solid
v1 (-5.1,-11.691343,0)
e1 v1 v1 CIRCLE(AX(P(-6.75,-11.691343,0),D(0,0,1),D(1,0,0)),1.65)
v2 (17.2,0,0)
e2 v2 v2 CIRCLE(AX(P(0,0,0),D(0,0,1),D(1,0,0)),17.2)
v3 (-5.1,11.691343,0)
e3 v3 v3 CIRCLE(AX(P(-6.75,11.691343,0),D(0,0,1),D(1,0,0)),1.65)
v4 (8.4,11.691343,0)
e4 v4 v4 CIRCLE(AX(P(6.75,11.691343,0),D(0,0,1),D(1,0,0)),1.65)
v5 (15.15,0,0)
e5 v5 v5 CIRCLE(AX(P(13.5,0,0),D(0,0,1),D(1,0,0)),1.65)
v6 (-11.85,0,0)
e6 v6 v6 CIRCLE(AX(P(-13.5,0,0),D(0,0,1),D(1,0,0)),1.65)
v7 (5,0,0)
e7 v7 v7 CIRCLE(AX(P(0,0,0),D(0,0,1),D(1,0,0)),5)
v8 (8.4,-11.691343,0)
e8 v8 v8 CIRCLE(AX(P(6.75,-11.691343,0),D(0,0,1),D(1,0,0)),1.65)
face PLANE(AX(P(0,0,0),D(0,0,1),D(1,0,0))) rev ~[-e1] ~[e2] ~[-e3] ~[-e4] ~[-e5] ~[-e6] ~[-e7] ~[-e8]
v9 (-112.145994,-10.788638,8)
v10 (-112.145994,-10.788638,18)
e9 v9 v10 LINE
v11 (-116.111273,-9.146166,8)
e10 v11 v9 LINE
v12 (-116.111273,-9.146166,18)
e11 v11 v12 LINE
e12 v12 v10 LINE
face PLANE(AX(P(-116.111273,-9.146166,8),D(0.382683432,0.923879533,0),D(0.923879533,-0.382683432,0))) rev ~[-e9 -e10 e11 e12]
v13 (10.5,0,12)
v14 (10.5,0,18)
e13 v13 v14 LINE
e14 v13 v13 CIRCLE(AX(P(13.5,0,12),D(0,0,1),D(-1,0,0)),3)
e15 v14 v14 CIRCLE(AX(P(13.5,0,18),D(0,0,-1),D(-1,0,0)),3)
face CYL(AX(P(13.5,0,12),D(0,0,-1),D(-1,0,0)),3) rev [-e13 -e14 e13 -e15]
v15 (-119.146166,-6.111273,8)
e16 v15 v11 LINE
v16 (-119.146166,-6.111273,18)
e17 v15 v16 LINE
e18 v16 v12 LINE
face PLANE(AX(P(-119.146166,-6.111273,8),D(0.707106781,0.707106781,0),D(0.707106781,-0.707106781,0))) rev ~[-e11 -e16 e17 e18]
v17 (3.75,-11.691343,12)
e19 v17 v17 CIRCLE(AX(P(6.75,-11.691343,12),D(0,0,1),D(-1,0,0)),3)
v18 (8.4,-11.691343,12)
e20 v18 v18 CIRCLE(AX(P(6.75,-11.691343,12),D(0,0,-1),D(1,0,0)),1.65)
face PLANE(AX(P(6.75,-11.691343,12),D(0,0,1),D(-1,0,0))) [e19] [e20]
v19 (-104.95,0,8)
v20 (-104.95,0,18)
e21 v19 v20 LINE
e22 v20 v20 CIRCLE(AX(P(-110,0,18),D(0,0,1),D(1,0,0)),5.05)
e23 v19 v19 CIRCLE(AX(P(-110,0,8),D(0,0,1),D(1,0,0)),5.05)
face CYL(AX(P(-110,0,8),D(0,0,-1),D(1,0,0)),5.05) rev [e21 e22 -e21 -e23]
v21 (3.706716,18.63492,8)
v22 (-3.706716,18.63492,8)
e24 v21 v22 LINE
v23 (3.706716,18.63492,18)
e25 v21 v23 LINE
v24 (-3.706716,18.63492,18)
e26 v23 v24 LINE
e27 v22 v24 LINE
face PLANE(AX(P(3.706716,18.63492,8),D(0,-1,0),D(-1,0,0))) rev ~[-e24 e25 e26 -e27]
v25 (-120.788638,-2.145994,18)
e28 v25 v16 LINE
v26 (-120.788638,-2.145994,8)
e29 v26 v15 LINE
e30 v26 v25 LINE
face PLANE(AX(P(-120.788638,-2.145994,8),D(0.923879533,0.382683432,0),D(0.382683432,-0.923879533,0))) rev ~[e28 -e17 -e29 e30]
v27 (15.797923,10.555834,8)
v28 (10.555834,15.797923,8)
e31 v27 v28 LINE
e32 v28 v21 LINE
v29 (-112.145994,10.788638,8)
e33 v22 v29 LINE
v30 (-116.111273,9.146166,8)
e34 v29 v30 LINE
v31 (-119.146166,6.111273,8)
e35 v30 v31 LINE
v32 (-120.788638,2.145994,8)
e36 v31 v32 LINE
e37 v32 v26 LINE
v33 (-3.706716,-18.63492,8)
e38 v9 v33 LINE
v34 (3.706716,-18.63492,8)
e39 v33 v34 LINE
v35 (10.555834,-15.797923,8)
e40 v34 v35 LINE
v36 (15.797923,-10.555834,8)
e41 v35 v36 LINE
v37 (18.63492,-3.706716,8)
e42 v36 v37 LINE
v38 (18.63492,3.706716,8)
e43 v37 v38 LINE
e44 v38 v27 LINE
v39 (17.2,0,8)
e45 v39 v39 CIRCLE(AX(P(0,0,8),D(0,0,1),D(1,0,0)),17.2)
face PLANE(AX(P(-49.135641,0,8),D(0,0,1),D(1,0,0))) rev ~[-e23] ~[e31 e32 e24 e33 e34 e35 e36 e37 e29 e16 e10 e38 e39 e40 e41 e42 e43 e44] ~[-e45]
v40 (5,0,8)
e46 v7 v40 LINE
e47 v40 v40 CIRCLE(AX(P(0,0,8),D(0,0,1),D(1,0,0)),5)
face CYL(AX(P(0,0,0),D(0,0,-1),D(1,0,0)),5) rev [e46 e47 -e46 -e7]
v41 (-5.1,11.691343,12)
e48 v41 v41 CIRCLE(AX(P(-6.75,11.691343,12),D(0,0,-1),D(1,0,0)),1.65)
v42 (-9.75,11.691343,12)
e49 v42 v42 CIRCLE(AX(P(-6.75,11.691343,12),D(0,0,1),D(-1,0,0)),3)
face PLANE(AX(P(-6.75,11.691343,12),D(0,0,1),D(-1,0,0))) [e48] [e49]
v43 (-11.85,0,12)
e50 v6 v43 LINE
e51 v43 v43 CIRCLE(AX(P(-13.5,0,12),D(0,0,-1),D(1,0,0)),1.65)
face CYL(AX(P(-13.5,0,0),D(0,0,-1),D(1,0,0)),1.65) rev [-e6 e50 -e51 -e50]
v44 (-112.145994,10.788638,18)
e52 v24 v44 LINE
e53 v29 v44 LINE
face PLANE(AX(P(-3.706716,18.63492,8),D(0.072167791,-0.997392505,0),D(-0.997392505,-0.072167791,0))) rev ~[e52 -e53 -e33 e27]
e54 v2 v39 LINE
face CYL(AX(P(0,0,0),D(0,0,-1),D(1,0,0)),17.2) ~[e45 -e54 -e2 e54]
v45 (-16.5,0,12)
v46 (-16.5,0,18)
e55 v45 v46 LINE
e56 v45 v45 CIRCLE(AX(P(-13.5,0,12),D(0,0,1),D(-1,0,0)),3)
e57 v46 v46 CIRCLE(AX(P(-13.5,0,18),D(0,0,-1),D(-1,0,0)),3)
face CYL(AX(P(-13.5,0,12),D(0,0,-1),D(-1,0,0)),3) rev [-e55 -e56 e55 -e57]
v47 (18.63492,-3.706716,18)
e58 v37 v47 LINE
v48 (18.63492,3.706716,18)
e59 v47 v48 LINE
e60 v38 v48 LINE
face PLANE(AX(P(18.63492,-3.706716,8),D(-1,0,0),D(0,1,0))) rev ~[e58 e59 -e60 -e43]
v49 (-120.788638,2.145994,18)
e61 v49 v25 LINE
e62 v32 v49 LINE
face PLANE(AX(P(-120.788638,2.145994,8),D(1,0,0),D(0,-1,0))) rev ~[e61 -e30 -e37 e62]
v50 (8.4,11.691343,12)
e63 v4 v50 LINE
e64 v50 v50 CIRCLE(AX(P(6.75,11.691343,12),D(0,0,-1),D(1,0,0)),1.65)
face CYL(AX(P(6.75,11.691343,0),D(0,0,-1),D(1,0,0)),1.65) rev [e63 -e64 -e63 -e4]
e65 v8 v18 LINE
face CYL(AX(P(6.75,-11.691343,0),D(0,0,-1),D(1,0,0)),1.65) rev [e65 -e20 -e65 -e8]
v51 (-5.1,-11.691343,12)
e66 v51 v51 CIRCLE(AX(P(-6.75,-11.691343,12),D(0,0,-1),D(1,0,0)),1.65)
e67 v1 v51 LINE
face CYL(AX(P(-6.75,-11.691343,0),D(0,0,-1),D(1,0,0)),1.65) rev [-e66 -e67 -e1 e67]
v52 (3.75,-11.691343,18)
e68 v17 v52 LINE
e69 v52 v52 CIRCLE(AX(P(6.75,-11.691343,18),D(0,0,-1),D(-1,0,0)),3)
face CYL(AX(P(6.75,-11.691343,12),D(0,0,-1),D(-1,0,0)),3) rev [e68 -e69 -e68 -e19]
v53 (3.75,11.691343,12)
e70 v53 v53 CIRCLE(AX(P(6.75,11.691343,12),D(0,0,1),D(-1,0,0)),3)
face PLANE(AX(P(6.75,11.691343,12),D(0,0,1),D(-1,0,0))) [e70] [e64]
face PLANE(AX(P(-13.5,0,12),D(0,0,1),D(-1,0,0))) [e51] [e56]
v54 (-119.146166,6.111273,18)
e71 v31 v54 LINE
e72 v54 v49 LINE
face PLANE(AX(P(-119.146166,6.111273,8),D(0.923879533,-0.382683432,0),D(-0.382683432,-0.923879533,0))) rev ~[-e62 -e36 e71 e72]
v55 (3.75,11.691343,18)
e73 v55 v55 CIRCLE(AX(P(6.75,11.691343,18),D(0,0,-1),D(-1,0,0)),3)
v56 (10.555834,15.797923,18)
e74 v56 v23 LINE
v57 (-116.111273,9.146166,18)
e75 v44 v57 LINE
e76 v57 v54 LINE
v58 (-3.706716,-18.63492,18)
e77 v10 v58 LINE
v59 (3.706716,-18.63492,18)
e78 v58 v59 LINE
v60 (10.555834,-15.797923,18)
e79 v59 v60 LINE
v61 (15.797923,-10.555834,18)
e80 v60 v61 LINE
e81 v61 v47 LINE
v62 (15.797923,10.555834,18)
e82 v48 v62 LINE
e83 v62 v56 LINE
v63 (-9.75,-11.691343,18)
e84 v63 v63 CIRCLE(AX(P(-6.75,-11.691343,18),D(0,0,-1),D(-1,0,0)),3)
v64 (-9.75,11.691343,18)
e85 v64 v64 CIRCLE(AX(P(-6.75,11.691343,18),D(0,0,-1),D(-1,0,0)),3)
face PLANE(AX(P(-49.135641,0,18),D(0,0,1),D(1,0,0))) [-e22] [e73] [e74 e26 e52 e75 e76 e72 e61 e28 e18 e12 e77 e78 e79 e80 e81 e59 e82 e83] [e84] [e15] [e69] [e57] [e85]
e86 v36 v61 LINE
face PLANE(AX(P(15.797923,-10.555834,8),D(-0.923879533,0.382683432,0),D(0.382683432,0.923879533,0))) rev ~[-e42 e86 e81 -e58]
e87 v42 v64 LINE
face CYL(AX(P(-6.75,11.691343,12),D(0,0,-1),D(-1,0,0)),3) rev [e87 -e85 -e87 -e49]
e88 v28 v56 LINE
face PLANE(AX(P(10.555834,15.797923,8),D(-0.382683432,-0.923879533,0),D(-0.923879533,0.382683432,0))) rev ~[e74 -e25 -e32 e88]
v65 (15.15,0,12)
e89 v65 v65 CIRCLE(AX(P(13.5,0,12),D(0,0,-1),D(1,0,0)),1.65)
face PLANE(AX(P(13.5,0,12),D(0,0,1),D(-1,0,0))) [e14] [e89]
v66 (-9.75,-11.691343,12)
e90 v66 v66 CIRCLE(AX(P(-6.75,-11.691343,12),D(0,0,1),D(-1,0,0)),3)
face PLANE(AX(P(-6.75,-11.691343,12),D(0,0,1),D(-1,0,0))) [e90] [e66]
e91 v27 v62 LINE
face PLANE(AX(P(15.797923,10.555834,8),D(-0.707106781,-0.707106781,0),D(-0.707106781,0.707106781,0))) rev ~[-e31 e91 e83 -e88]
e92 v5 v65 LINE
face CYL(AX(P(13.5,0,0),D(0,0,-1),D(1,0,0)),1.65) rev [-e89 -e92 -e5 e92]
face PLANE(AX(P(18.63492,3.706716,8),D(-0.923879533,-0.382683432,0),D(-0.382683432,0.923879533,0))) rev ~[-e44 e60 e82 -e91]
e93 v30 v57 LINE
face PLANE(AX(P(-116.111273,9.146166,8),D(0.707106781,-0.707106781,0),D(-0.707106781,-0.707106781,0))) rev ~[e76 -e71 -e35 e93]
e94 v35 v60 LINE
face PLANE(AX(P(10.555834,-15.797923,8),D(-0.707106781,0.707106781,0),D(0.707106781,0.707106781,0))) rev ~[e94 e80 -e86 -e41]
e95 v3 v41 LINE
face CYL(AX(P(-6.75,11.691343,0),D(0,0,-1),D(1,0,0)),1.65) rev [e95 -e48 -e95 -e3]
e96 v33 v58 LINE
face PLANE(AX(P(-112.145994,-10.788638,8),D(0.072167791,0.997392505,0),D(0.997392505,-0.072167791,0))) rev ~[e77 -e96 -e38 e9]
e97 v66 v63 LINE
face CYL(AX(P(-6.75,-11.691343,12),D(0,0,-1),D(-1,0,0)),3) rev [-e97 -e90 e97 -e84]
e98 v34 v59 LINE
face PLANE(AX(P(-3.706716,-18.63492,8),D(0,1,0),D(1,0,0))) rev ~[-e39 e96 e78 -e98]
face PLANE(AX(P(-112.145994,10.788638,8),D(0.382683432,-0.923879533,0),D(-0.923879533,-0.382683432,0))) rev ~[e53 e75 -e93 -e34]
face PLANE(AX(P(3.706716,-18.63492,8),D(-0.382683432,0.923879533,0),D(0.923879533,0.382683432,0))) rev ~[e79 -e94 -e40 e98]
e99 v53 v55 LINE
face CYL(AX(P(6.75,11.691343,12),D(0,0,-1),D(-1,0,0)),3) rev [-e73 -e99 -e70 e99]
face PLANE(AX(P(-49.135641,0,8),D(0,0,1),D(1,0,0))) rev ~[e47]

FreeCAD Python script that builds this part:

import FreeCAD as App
import Part
import Sketcher
Q = App.Units.Quantity

doc = App.newDocument("Part")
params = doc.addObject("Spreadsheet::Sheet", "Params")
for row, (alias, value) in enumerate([
    ("sketch1_diameter", "3.3 mm"),
    ("sketch1_diameter2", "10.1 mm"),
    ("pad1_length", "10 mm"),
    ("sketch2_diameter", "10 mm"),
    ("sketch2_diameter2", "34.4 mm"),
    ("sketch2_diameter3", "3.3 mm"),
    ("pad2_length", "8 mm"),
    ("sketch3_diameter", "6 mm"),
    ("pocket1_length", "6.01 mm"),
], start=1):
    params.set(f"A{row}", alias)
    params.set(f"B{row}", "=" + value)
    params.setAlias(f"B{row}", alias)

body = doc.addObject("PartDesign::Body", "Body")

sketch1 = body.newObject("Sketcher::SketchObject", "Sketch")
sketch1.AttachmentSupport = (doc.getObject("XY_Plane"), [""])
sketch1.MapMode = "FlatFace"
sketch1.AttachmentOffset = App.Placement(App.Vector(0, 0, 8), App.Rotation())
sketch1.addGeometry(Part.LineSegment(App.Vector(-116.1, 9.1, 0), App.Vector(-119.1, 6.1, 0)), False)
sketch1.addGeometry(Part.LineSegment(App.Vector(-119.1, 6.1, 0), App.Vector(-120.8, 2.1, 0)), False)
sketch1.addGeometry(Part.LineSegment(App.Vector(-120.8, 2.1, 0), App.Vector(-120.8, -2.1, 0)), False)
sketch1.addGeometry(Part.LineSegment(App.Vector(-120.8, -2.1, 0), App.Vector(-119.1, -6.1, 0)), False)
sketch1.addGeometry(Part.LineSegment(App.Vector(-119.1, -6.1, 0), App.Vector(-116.1, -9.1, 0)), False)
sketch1.addGeometry(Part.LineSegment(App.Vector(-116.1, -9.1, 0), App.Vector(-112.1, -10.8, 0)), False)
sketch1.addGeometry(Part.LineSegment(App.Vector(-112.1, -10.8, 0), App.Vector(-3.7, -18.6, 0)), False)
sketch1.addGeometry(Part.LineSegment(App.Vector(-3.7, -18.6, 0), App.Vector(3.7, -18.6, 0)), False)
sketch1.addGeometry(Part.LineSegment(App.Vector(3.7, -18.6, 0), App.Vector(10.6, -15.8, 0)), False)
sketch1.addGeometry(Part.LineSegment(App.Vector(10.6, -15.8, 0), App.Vector(15.8, -10.6, 0)), False)
sketch1.addGeometry(Part.LineSegment(App.Vector(15.8, -10.6, 0), App.Vector(18.6, -3.7, 0)), False)
sketch1.addGeometry(Part.LineSegment(App.Vector(18.6, -3.7, 0), App.Vector(18.6, 3.7, 0)), False)
sketch1.addGeometry(Part.LineSegment(App.Vector(18.6, 3.7, 0), App.Vector(15.8, 10.6, 0)), False)
sketch1.addGeometry(Part.LineSegment(App.Vector(15.8, 10.6, 0), App.Vector(10.6, 15.8, 0)), False)
sketch1.addGeometry(Part.LineSegment(App.Vector(10.6, 15.8, 0), App.Vector(3.7, 18.6, 0)), False)
sketch1.addGeometry(Part.LineSegment(App.Vector(3.7, 18.6, 0), App.Vector(-3.7, 18.6, 0)), False)
sketch1.addGeometry(Part.LineSegment(App.Vector(-3.7, 18.6, 0), App.Vector(-112.1, 10.8, 0)), False)
sketch1.addGeometry(Part.LineSegment(App.Vector(-112.1, 10.8, 0), App.Vector(-116.1, 9.1, 0)), False)
sketch1.addGeometry(Part.Circle(App.Vector(-6.8, -11.7, 0), App.Vector(0, 0, 1), 1.6), False)
sketch1.addGeometry(Part.Circle(App.Vector(6.8, -11.7, 0), App.Vector(0, 0, 1), 1.6), False)
sketch1.addGeometry(Part.Circle(App.Vector(-110, 0, 0), App.Vector(0, 0, 1), 5), False)
sketch1.addGeometry(Part.Circle(App.Vector(-13.5, 0, 0), App.Vector(0, 0, 1), 1.6), False)
sketch1.addGeometry(Part.Circle(App.Vector(13.5, 0, 0), App.Vector(0, 0, 1), 1.6), False)
sketch1.addGeometry(Part.Circle(App.Vector(-6.8, 11.7, 0), App.Vector(0, 0, 1), 1.6), False)
sketch1.addGeometry(Part.Circle(App.Vector(6.8, 11.7, 0), App.Vector(0, 0, 1), 1.6), False)
sketch1.addConstraint(Sketcher.Constraint("Coincident", 0, 2, 1, 1))
sketch1.addConstraint(Sketcher.Constraint("Coincident", 1, 2, 2, 1))
sketch1.addConstraint(Sketcher.Constraint("Coincident", 2, 2, 3, 1))
sketch1.addConstraint(Sketcher.Constraint("Coincident", 3, 2, 4, 1))
sketch1.addConstraint(Sketcher.Constraint("Coincident", 4, 2, 5, 1))
sketch1.addConstraint(Sketcher.Constraint("Coincident", 5, 2, 6, 1))
sketch1.addConstraint(Sketcher.Constraint("Coincident", 6, 2, 7, 1))
sketch1.addConstraint(Sketcher.Constraint("Coincident", 7, 2, 8, 1))
sketch1.addConstraint(Sketcher.Constraint("Coincident", 8, 2, 9, 1))
sketch1.addConstraint(Sketcher.Constraint("Coincident", 9, 2, 10, 1))
sketch1.addConstraint(Sketcher.Constraint("Coincident", 10, 2, 11, 1))
sketch1.addConstraint(Sketcher.Constraint("Coincident", 11, 2, 12, 1))
sketch1.addConstraint(Sketcher.Constraint("Coincident", 12, 2, 13, 1))
sketch1.addConstraint(Sketcher.Constraint("Coincident", 13, 2, 14, 1))
sketch1.addConstraint(Sketcher.Constraint("Coincident", 14, 2, 15, 1))
sketch1.addConstraint(Sketcher.Constraint("Coincident", 15, 2, 16, 1))
sketch1.addConstraint(Sketcher.Constraint("Coincident", 16, 2, 17, 1))
sketch1.addConstraint(Sketcher.Constraint("Coincident", 17, 2, 0, 1))
sketch1.addConstraint(Sketcher.Constraint("Vertical", 2))
sketch1.addConstraint(Sketcher.Constraint("Horizontal", 7))
sketch1.addConstraint(Sketcher.Constraint("Vertical", 11))
sketch1.addConstraint(Sketcher.Constraint("Horizontal", 15))
sketch1.addConstraint(Sketcher.Constraint("Equal", 18, 19))
sketch1.addConstraint(Sketcher.Constraint("Equal", 19, 21))
sketch1.addConstraint(Sketcher.Constraint("Equal", 21, 22))
sketch1.addConstraint(Sketcher.Constraint("Equal", 22, 23))
sketch1.addConstraint(Sketcher.Constraint("Equal", 23, 24))
sketch1.addConstraint(Sketcher.Constraint("Symmetric", 21, 3, 22, 3, -1, 1))
sketch1.addConstraint(Sketcher.Constraint("Symmetric", 19, 3, 23, 3, -1, 1))
sketch1.addConstraint(Sketcher.Constraint("Symmetric", 18, 3, 24, 3, -1, 1))
sketch1.addConstraint(Sketcher.Constraint("Symmetric", 6, 2, 14, 2, -1, 1))
sketch1.addConstraint(Sketcher.Constraint("Symmetric", 18, 3, 19, 3, -2))
sketch1.addConstraint(Sketcher.Constraint("Symmetric", 0, 2, 3, 2, -1))
sketch1.addConstraint(Sketcher.Constraint("Symmetric", 9, 2, 12, 2, -1))
sketch1.addConstraint(Sketcher.Constraint("Symmetric", 8, 2, 13, 2, -1))
sketch1.addConstraint(Sketcher.Constraint("Symmetric", 5, 2, 16, 2, -1))
sketch1.addConstraint(Sketcher.Constraint("Symmetric", 4, 2, 17, 2, -1))
sketch1.addConstraint(Sketcher.Constraint("PointOnObject", 20, 3, -1))
sketch1.addConstraint(Sketcher.Constraint("PointOnObject", 21, 3, -1))
sketch1.addConstraint(Sketcher.Constraint("Perpendicular", 0, 4))
sketch1.addConstraint(Sketcher.Constraint("Perpendicular", 1, 5))
sketch1.addConstraint(Sketcher.Constraint("Perpendicular", 3, 8))
sketch1.addConstraint(Sketcher.Constraint("Perpendicular", 4, 9))
sketch1.addConstraint(Sketcher.Constraint("Perpendicular", 5, 10))
sketch1.addConstraint(Sketcher.Constraint("Perpendicular", 8, 12))
sketch1.addConstraint(Sketcher.Constraint("Perpendicular", 10, 14))
sketch1.addConstraint(Sketcher.Constraint("Perpendicular", 12, 17))
sketch1.addConstraint(Sketcher.Constraint("Vertical", 6, 2, 15, 2))
sketch1.addConstraint(Sketcher.Constraint("Equal", 15, 11))
sketch1.addConstraint(Sketcher.Constraint("Equal", 0, 1))
sketch1.addConstraint(Sketcher.Constraint("Equal", 4, 5))
sketch1.addConstraint(Sketcher.Constraint("Equal", 8, 9))
sketch1.addConstraint(Sketcher.Constraint("Equal", 9, 10))
sketch1.addConstraint(Sketcher.Constraint("Diameter", 18, Q("3.3 mm")))
sketch1.addConstraint(Sketcher.Constraint("Diameter", 20, Q("10.1 mm")))
sketch1.addConstraint(Sketcher.Constraint("DistanceX", 20, 3, -1, 1, Q("110 mm")))
sketch1.addConstraint(Sketcher.Constraint("Angle", 1, Q("-112.5 deg")))
sketch1.addConstraint(Sketcher.Constraint("DistanceX", 21, 3, 22, 3, Q("27 mm")))
sketch1.addConstraint(Sketcher.Constraint("DistanceX", 18, 3, 19, 3, Q("13.5 mm")))
sketch1.addConstraint(Sketcher.Constraint("Distance", 6, Q("108.722771 mm")))
sketch1.addConstraint(Sketcher.Constraint("DistanceX", 7, 1, 7, 2, Q("7.413432 mm")))
sketch1.addConstraint(Sketcher.Constraint("DistanceY", 2, 2, 2, 1, Q("4.291987 mm")))
sketch1.addConstraint(Sketcher.Constraint("DistanceX", 1, 2, -1, 1, Q("120.788638 mm")))
sketch1.addConstraint(Sketcher.Constraint("DistanceY", 5, 2, -1, 1, Q("10.788638 mm")))
sketch1.addConstraint(Sketcher.Constraint("DistanceY", 0, 2, 23, 3, Q("5.58007 mm")))
sketch1.setExpression("Constraints[53]", "Params.sketch1_diameter")
sketch1.setExpression("Constraints[54]", "Params.sketch1_diameter2")
pad1 = body.newObject("PartDesign::Pad", "Pad")
pad1.Profile = sketch1
pad1.setExpression("Length", "Params.pad1_length")

sketch2 = body.newObject("Sketcher::SketchObject", "Sketch001")
sketch2.AttachmentSupport = (doc.getObject("XY_Plane"), [""])
sketch2.MapMode = "FlatFace"
sketch2.addGeometry(Part.Circle(App.Vector(0, 0, 0), App.Vector(0, 0, 1), 17.2), False)
sketch2.addGeometry(Part.Circle(App.Vector(-6.8, -11.7, 0), App.Vector(0, 0, 1), 1.6), False)
sketch2.addGeometry(Part.Circle(App.Vector(6.8, -11.7, 0), App.Vector(0, 0, 1), 1.6), False)
sketch2.addGeometry(Part.Circle(App.Vector(0, 0, 0), App.Vector(0, 0, 1), 5), False)
sketch2.addGeometry(Part.Circle(App.Vector(-13.5, 0, 0), App.Vector(0, 0, 1), 1.6), False)
sketch2.addGeometry(Part.Circle(App.Vector(-6.8, 11.7, 0), App.Vector(0, 0, 1), 1.6), False)
sketch2.addGeometry(Part.Circle(App.Vector(13.5, 0, 0), App.Vector(0, 0, 1), 1.6), False)
sketch2.addGeometry(Part.Circle(App.Vector(6.8, 11.7, 0), App.Vector(0, 0, 1), 1.6), False)
sketch2.addConstraint(Sketcher.Constraint("Coincident", 0, 3, -1, 1))
sketch2.addConstraint(Sketcher.Constraint("Coincident", 3, 3, -1, 1))
sketch2.addConstraint(Sketcher.Constraint("Equal", 1, 2))
sketch2.addConstraint(Sketcher.Constraint("Equal", 2, 4))
sketch2.addConstraint(Sketcher.Constraint("Equal", 4, 5))
sketch2.addConstraint(Sketcher.Constraint("Equal", 5, 6))
sketch2.addConstraint(Sketcher.Constraint("Equal", 6, 7))
sketch2.addConstraint(Sketcher.Constraint("Symmetric", 2, 3, 5, 3, -1, 1))
sketch2.addConstraint(Sketcher.Constraint("Symmetric", 4, 3, 6, 3, -1, 1))
sketch2.addConstraint(Sketcher.Constraint("Symmetric", 1, 3, 7, 3, -1, 1))
sketch2.addConstraint(Sketcher.Constraint("Symmetric", 1, 3, 2, 3, -2))
sketch2.addConstraint(Sketcher.Constraint("PointOnObject", 4, 3, -1))
sketch2.addConstraint(Sketcher.Constraint("Diameter", 3, Q("10 mm")))
sketch2.addConstraint(Sketcher.Constraint("Diameter", 0, Q("34.4 mm")))
sketch2.addConstraint(Sketcher.Constraint("Diameter", 1, Q("3.3 mm")))
sketch2.addConstraint(Sketcher.Constraint("DistanceX", 4, 3, -1, 1, Q("13.5 mm")))
sketch2.addConstraint(Sketcher.Constraint("DistanceX", 1, 3, 2, 3, Q("13.5 mm")))
sketch2.addConstraint(Sketcher.Constraint("DistanceY", 1, 3, -1, 1, Q("11.691343 mm")))
sketch2.setExpression("Constraints[12]", "Params.sketch2_diameter")
sketch2.setExpression("Constraints[13]", "Params.sketch2_diameter2")
sketch2.setExpression("Constraints[14]", "Params.sketch2_diameter3")
pad2 = body.newObject("PartDesign::Pad", "Pad001")
pad2.Profile = sketch2
pad2.setExpression("Length", "Params.pad2_length")

sketch3 = body.newObject("Sketcher::SketchObject", "Sketch002")
sketch3.AttachmentSupport = (doc.getObject("XY_Plane"), [""])
sketch3.MapMode = "FlatFace"
sketch3.AttachmentOffset = App.Placement(App.Vector(0, 0, 12), App.Rotation())
sketch3.addGeometry(Part.Circle(App.Vector(-13.5, 0, 0), App.Vector(0, 0, 1), 3), False)
sketch3.addGeometry(Part.Circle(App.Vector(-6.8, 11.7, 0), App.Vector(0, 0, 1), 3), False)
sketch3.addGeometry(Part.Circle(App.Vector(6.8, 11.7, 0), App.Vector(0, 0, 1), 3), False)
sketch3.addGeometry(Part.Circle(App.Vector(13.5, 0, 0), App.Vector(0, 0, 1), 3), False)
sketch3.addGeometry(Part.Circle(App.Vector(6.8, -11.7, 0), App.Vector(0, 0, 1), 3), False)
sketch3.addGeometry(Part.Circle(App.Vector(-6.8, -11.7, 0), App.Vector(0, 0, 1), 3), False)
sketch3.addConstraint(Sketcher.Constraint("Equal", 0, 1))
sketch3.addConstraint(Sketcher.Constraint("Equal", 1, 2))
sketch3.addConstraint(Sketcher.Constraint("Equal", 2, 3))
sketch3.addConstraint(Sketcher.Constraint("Equal", 3, 4))
sketch3.addConstraint(Sketcher.Constraint("Equal", 4, 5))
sketch3.addConstraint(Sketcher.Constraint("Symmetric", 0, 3, 3, 3, -1, 1))
sketch3.addConstraint(Sketcher.Constraint("Symmetric", 1, 3, 4, 3, -1, 1))
sketch3.addConstraint(Sketcher.Constraint("Symmetric", 2, 3, 5, 3, -1, 1))
sketch3.addConstraint(Sketcher.Constraint("Symmetric", 1, 3, 2, 3, -2))
sketch3.addConstraint(Sketcher.Constraint("PointOnObject", 0, 3, -1))
sketch3.addConstraint(Sketcher.Constraint("Diameter", 0, Q("6 mm")))
sketch3.addConstraint(Sketcher.Constraint("DistanceX", 0, 3, 3, 3, Q("27 mm")))
sketch3.addConstraint(Sketcher.Constraint("DistanceX", 1, 3, 2, 3, Q("13.5 mm")))
sketch3.addConstraint(Sketcher.Constraint("DistanceY", -1, 1, 1, 3, Q("11.691343 mm")))
sketch3.setExpression("Constraints[10]", "Params.sketch3_diameter")
pocket1 = body.newObject("PartDesign::Pocket", "Pocket")
pocket1.Profile = sketch3
pocket1.setExpression("Length", "Params.pocket1_length")
pocket1.Reversed = True

doc.recompute()
